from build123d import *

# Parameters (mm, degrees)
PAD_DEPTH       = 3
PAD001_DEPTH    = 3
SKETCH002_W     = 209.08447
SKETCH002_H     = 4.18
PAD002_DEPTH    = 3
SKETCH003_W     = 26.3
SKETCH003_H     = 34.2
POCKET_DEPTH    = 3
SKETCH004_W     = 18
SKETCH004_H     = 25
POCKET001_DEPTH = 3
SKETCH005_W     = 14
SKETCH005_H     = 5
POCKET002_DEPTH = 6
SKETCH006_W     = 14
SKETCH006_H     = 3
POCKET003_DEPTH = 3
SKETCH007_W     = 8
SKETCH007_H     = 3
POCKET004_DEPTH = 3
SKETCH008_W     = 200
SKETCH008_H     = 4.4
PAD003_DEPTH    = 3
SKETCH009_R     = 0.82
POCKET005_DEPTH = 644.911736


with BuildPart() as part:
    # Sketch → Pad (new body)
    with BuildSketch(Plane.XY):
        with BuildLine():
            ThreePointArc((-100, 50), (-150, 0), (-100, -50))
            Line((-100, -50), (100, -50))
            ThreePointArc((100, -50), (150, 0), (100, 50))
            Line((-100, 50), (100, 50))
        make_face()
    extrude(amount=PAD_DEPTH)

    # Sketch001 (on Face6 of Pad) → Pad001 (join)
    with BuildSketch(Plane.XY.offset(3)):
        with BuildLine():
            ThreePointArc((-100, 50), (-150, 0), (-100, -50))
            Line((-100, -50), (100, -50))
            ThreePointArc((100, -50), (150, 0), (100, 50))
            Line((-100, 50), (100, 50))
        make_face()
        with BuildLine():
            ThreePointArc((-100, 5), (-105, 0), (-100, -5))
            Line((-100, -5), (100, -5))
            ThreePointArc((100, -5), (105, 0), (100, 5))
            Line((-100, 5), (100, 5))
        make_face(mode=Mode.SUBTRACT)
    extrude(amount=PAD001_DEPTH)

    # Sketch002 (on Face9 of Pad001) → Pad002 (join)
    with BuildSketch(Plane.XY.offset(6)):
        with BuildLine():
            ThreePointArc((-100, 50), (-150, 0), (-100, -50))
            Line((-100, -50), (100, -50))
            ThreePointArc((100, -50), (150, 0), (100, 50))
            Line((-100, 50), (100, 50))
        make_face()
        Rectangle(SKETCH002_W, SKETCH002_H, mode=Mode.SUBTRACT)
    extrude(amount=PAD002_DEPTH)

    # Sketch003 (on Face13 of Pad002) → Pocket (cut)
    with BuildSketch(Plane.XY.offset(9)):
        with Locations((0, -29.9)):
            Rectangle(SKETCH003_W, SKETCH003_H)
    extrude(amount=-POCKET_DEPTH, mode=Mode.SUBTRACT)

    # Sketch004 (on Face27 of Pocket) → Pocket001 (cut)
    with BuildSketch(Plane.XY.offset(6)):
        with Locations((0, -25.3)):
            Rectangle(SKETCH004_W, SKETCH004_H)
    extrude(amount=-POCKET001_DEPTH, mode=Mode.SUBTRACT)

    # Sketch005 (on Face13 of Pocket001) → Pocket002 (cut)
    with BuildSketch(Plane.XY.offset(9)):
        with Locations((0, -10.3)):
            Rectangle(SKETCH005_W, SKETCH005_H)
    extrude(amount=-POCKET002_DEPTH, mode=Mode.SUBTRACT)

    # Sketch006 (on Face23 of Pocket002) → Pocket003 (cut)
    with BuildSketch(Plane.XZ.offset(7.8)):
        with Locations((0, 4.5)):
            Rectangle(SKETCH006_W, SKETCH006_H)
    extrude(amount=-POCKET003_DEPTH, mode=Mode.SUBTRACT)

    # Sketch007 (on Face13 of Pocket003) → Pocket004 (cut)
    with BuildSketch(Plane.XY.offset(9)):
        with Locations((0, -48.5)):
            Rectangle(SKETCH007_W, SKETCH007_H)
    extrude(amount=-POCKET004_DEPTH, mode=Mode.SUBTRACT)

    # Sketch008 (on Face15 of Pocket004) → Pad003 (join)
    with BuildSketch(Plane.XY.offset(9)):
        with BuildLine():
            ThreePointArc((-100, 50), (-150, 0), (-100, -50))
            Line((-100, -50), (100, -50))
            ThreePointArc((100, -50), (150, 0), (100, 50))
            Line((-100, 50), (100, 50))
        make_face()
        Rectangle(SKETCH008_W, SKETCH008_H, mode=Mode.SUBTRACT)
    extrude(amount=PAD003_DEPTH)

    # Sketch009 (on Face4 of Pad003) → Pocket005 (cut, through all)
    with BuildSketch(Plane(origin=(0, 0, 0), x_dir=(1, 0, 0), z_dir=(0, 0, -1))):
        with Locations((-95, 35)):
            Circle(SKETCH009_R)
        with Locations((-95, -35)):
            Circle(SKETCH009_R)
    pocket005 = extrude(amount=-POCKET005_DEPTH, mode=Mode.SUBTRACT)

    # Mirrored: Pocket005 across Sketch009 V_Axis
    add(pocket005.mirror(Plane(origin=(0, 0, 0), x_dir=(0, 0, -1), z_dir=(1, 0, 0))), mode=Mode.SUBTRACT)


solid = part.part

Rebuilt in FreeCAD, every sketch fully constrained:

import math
import FreeCAD as App
import Part
import Sketcher


def add_polygon(sketch, points):
    """Adds a closed chain of lines whose ends are joined by coincident constraints."""
    first, n = sketch.GeometryCount, len(points)
    for a, b in zip(points, points[1:] + points[:1]):
        sketch.addGeometry(Part.LineSegment(App.Vector(*a, 0), App.Vector(*b, 0)), False)
    for i in range(n):
        sketch.addConstraint(Sketcher.Constraint("Coincident", first + i, 2, first + (i + 1) % n, 1))

doc = App.newDocument("Part")
body = doc.addObject("PartDesign::Body", "Body")

# Sketch on XY plane
sketch1 = body.newObject("Sketcher::SketchObject", "Sketch")
sketch1.AttachmentSupport = (doc.getObject("XY_Plane"), [""])
sketch1.MapMode = "FlatFace"
sketch1.addGeometry([
    Part.ArcOfCircle(Part.Circle(App.Vector(-100, 0, 0), App.Vector(0, 0, 1), 50), math.radians(90), math.radians(270)),
    Part.LineSegment(App.Vector(-100, -50, 0), App.Vector(100, -50, 0)),
    Part.ArcOfCircle(Part.Circle(App.Vector(100, 0, 0), App.Vector(0, 0, 1), 50), math.radians(-90), math.radians(90)),
    Part.LineSegment(App.Vector(100, 50, 0), App.Vector(-100, 50, 0)),
], False)
sketch1.addConstraint([
    Sketcher.Constraint("Tangent", 0, 2, 1, 1),
    Sketcher.Constraint("Tangent", 1, 2, 2, 1),
    Sketcher.Constraint("Tangent", 2, 2, 3, 1),
    Sketcher.Constraint("Tangent", 3, 2, 0, 1),
    Sketcher.Constraint("Horizontal", 1),
    Sketcher.Constraint("Horizontal", 3),
    Sketcher.Constraint("Symmetric", 0, 3, 2, 3, -1, 1),
    Sketcher.Constraint("Radius", 0, 50.0),
    Sketcher.Constraint("DistanceX", 1, 1, 1, 2, 200.0),
])
pad1 = body.newObject("PartDesign::Pad", "Pad")
pad1.Profile = sketch1
pad1.Length = 3

# Sketch on XY plane
sketch2 = body.newObject("Sketcher::SketchObject", "Sketch001")
sketch2.AttachmentSupport = (doc.getObject("XY_Plane"), [""])
sketch2.MapMode = "FlatFace"
sketch2.AttachmentOffset = App.Placement(App.Vector(0, 0, 3), App.Rotation())
sketch2.addGeometry([
    Part.ArcOfCircle(Part.Circle(App.Vector(-100, 0, 0), App.Vector(0, 0, 1), 50), math.radians(90), math.radians(270)),  # 0
    Part.LineSegment(App.Vector(-100, -50, 0), App.Vector(100, -50, 0)),  # 1
    Part.ArcOfCircle(Part.Circle(App.Vector(100, 0, 0), App.Vector(0, 0, 1), 50), math.radians(-90), math.radians(90)),  # 2
    Part.LineSegment(App.Vector(100, 50, 0), App.Vector(-100, 50, 0)),  # 3
    Part.ArcOfCircle(Part.Circle(App.Vector(-100, 0, 0), App.Vector(0, 0, 1), 5), math.radians(90), math.radians(270)),  # 4
    Part.LineSegment(App.Vector(-100, 5, 0), App.Vector(100, 5, 0)),  # 5
    Part.ArcOfCircle(Part.Circle(App.Vector(100, 0, 0), App.Vector(0, 0, 1), 5), math.radians(-90), math.radians(90)),  # 6
    Part.LineSegment(App.Vector(100, -5, 0), App.Vector(-100, -5, 0)),  # 7
], False)
sketch2.addConstraint([
    Sketcher.Constraint("Tangent", 0, 2, 1, 1),
    Sketcher.Constraint("Tangent", 1, 2, 2, 1),
    Sketcher.Constraint("Tangent", 2, 2, 3, 1),
    Sketcher.Constraint("Tangent", 3, 2, 0, 1),
    Sketcher.Constraint("Tangent", 4, 1, 5, 1),
    Sketcher.Constraint("Tangent", 5, 2, 6, 2),
    Sketcher.Constraint("Tangent", 6, 1, 7, 1),
    Sketcher.Constraint("Tangent", 7, 2, 4, 2),
    Sketcher.Constraint("Horizontal", 1),
    Sketcher.Constraint("Horizontal", 3),
    Sketcher.Constraint("Horizontal", 5),
    Sketcher.Constraint("Horizontal", 7),
    Sketcher.Constraint("Coincident", 4, 3, 0, 3),
    Sketcher.Constraint("Symmetric", 0, 3, 2, 3, -1, 1),
    Sketcher.Constraint("Vertical", 6, 3, 1, 2),
    Sketcher.Constraint("Radius", 0, 50.0),
    Sketcher.Constraint("Radius", 4, 5.0),
    Sketcher.Constraint("DistanceX", 1, 1, 1, 2, 200.0),
])
pad2 = body.newObject("PartDesign::Pad", "Pad001")
pad2.Profile = sketch2
pad2.Length = 3

# Sketch on XY plane
sketch3 = body.newObject("Sketcher::SketchObject", "Sketch002")
sketch3.AttachmentSupport = (doc.getObject("XY_Plane"), [""])
sketch3.MapMode = "FlatFace"
sketch3.AttachmentOffset = App.Placement(App.Vector(0, 0, 6), App.Rotation())
sketch3.addGeometry(Part.ArcOfCircle(Part.Circle(App.Vector(-100, 0, 0), App.Vector(0, 0, 1), 50), math.radians(90), math.radians(270)), False)  # 0
sketch3.addGeometry(Part.LineSegment(App.Vector(-100, -50, 0), App.Vector(100, -50, 0)), False)  # 1
sketch3.addGeometry(Part.ArcOfCircle(Part.Circle(App.Vector(100, 0, 0), App.Vector(0, 0, 1), 50), math.radians(-90), math.radians(90)), False)  # 2
sketch3.addGeometry(Part.LineSegment(App.Vector(100, 50, 0), App.Vector(-100, 50, 0)), False)  # 3
add_polygon(sketch3, [(104.5, -2.1), (-104.5, -2.1), (-104.5, 2.1), (104.5, 2.1)])  # lines 4-7
sketch3.addConstraint([
    Sketcher.Constraint("Tangent", 0, 2, 1, 1),
    Sketcher.Constraint("Tangent", 1, 2, 2, 1),
    Sketcher.Constraint("Tangent", 2, 2, 3, 1),
    Sketcher.Constraint("Tangent", 3, 2, 0, 1),
    Sketcher.Constraint("Horizontal", 1),
    Sketcher.Constraint("Horizontal", 3),
    Sketcher.Constraint("Horizontal", 4),
    Sketcher.Constraint("Vertical", 5),
    Sketcher.Constraint("Horizontal", 6),
    Sketcher.Constraint("Vertical", 7),
    Sketcher.Constraint("Symmetric", 0, 3, 2, 3, -1, 1),
    Sketcher.Constraint("Symmetric", 4, 2, 6, 2, -1, 1),
    Sketcher.Constraint("Radius", 0, 50.0),
    Sketcher.Constraint("DistanceX", 1, 1, 1, 2, 200.0),
    Sketcher.Constraint("DistanceY", 5, 1, 5, 2, 4.18),
    Sketcher.Constraint("DistanceX", 4, 2, 4, 1, 209.08447),
])
pad3 = body.newObject("PartDesign::Pad", "Pad002")
pad3.Profile = sketch3
pad3.Length = 3

# Sketch on XY plane
sketch4 = body.newObject("Sketcher::SketchObject", "Sketch003")
sketch4.AttachmentSupport = (doc.getObject("XY_Plane"), [""])
sketch4.MapMode = "FlatFace"
sketch4.AttachmentOffset = App.Placement(App.Vector(0, 0, 9), App.Rotation())
add_polygon(sketch4, [(-13, -13), (-13, -47), (13, -47), (13, -13)])  # lines 0-3
sketch4.addConstraint([
    Sketcher.Constraint("Vertical", 0),
    Sketcher.Constraint("Horizontal", 1),
    Sketcher.Constraint("Vertical", 2),
    Sketcher.Constraint("Horizontal", 3),
    Sketcher.Constraint("DistanceX", 1, 1, 1, 2, 26.3),
    Sketcher.Constraint("DistanceY", 0, 2, 0, 1, 34.2),
    Sketcher.Constraint("DistanceY", 0, 2, -1, 1, 47.0),
    Sketcher.Constraint("DistanceX", 0, 2, -1, 1, 13.15),
])
pocket1 = body.newObject("PartDesign::Pocket", "Pocket")
pocket1.Profile = sketch4
pocket1.Length = 3

# Sketch on XY plane
sketch5 = body.newObject("Sketcher::SketchObject", "Sketch004")
sketch5.AttachmentSupport = (doc.getObject("XY_Plane"), [""])
sketch5.MapMode = "FlatFace"
sketch5.AttachmentOffset = App.Placement(App.Vector(0, 0, 6), App.Rotation())
add_polygon(sketch5, [(-9, -13), (-9, -38), (9, -38), (9, -13)])  # lines 0-3
sketch5.addConstraint([
    Sketcher.Constraint("Vertical", 0),
    Sketcher.Constraint("Horizontal", 1),
    Sketcher.Constraint("Vertical", 2),
    Sketcher.Constraint("Horizontal", 3),
    Sketcher.Constraint("DistanceX", 1, 1, 1, 2, 18.0),
    Sketcher.Constraint("DistanceY", 0, 2, 0, 1, 25.0),
    Sketcher.Constraint("DistanceX", 0, 2, -1, 1, 9.0),
    Sketcher.Constraint("DistanceY", 0, 2, -1, 1, 37.8),
])
pocket2 = body.newObject("PartDesign::Pocket", "Pocket001")
pocket2.Profile = sketch5
pocket2.Length = 3

# Sketch on XY plane
sketch6 = body.newObject("Sketcher::SketchObject", "Sketch005")
sketch6.AttachmentSupport = (doc.getObject("XY_Plane"), [""])
sketch6.MapMode = "FlatFace"
sketch6.AttachmentOffset = App.Placement(App.Vector(0, 0, 9), App.Rotation())
add_polygon(sketch6, [(-7, -8), (-7, -13), (7, -13), (7, -8)])  # lines 0-3
sketch6.addConstraint([
    Sketcher.Constraint("Vertical", 0),
    Sketcher.Constraint("Horizontal", 1),
    Sketcher.Constraint("Vertical", 2),
    Sketcher.Constraint("Horizontal", 3),
    Sketcher.Constraint("DistanceX", 1, 1, 1, 2, 14.0),
    Sketcher.Constraint("DistanceY", 0, 2, 0, 1, 5.0),
    Sketcher.Constraint("DistanceX", 0, 2, -1, 1, 7.0),
    Sketcher.Constraint("DistanceY", 0, 2, -1, 1, 12.8),
])
pocket3 = body.newObject("PartDesign::Pocket", "Pocket002")
pocket3.Profile = sketch6
pocket3.Length = 6

# Sketch on XZ plane
sketch7 = body.newObject("Sketcher::SketchObject", "Sketch006")
sketch7.AttachmentSupport = (doc.getObject("XZ_Plane"), [""])
sketch7.MapMode = "FlatFace"
sketch7.AttachmentOffset = App.Placement(App.Vector(0, 0, 7.8), App.Rotation())
add_polygon(sketch7, [(-7, 6), (-7, 3), (7, 3), (7, 6)])  # lines 0-3
sketch7.addConstraint([
    Sketcher.Constraint("Vertical", 0),
    Sketcher.Constraint("Horizontal", 1),
    Sketcher.Constraint("Vertical", 2),
    Sketcher.Constraint("Horizontal", 3),
    Sketcher.Constraint("DistanceX", 1, 1, 1, 2, 14.0),
    Sketcher.Constraint("DistanceY", 0, 2, 0, 1, 3.0),
    Sketcher.Constraint("DistanceX", 0, 2, -1, 1, 7.0),
    Sketcher.Constraint("DistanceY", -1, 1, 0, 2, 3.0),
])
pocket4 = body.newObject("PartDesign::Pocket", "Pocket003")
pocket4.Profile = sketch7
pocket4.Length = 3

# Sketch on XY plane
sketch8 = body.newObject("Sketcher::SketchObject", "Sketch007")
sketch8.AttachmentSupport = (doc.getObject("XY_Plane"), [""])
sketch8.MapMode = "FlatFace"
sketch8.AttachmentOffset = App.Placement(App.Vector(0, 0, 9), App.Rotation())
add_polygon(sketch8, [(-4, -47), (-4, -50), (4, -50), (4, -47)])  # lines 0-3
sketch8.addConstraint([
    Sketcher.Constraint("Vertical", 0),
    Sketcher.Constraint("Horizontal", 1),
    Sketcher.Constraint("Vertical", 2),
    Sketcher.Constraint("Horizontal", 3),
    Sketcher.Constraint("DistanceX", 1, 1, 1, 2, 8.0),
    Sketcher.Constraint("DistanceY", 0, 2, 0, 1, 3.0),
    Sketcher.Constraint("DistanceX", 0, 2, -1, 1, 4.0),
    Sketcher.Constraint("DistanceY", 0, 2, -1, 1, 50.0),
])
pocket5 = body.newObject("PartDesign::Pocket", "Pocket004")
pocket5.Profile = sketch8
pocket5.Length = 3

# Sketch on XY plane
sketch9 = body.newObject("Sketcher::SketchObject", "Sketch008")
sketch9.AttachmentSupport = (doc.getObject("XY_Plane"), [""])
sketch9.MapMode = "FlatFace"
sketch9.AttachmentOffset = App.Placement(App.Vector(0, 0, 9), App.Rotation())
sketch9.addGeometry(Part.ArcOfCircle(Part.Circle(App.Vector(-100, 0, 0), App.Vector(0, 0, 1), 50), math.radians(90), math.radians(270)), False)  # 0
sketch9.addGeometry(Part.LineSegment(App.Vector(-100, -50, 0), App.Vector(100, -50, 0)), False)  # 1
sketch9.addGeometry(Part.ArcOfCircle(Part.Circle(App.Vector(100, 0, 0), App.Vector(0, 0, 1), 50), math.radians(-90), math.radians(90)), False)  # 2
sketch9.addGeometry(Part.LineSegment(App.Vector(100, 50, 0), App.Vector(-100, 50, 0)), False)  # 3
add_polygon(sketch9, [(100, -2.2), (-100, -2.2), (-100, 2.2), (100, 2.2)])  # lines 4-7
sketch9.addConstraint([
    Sketcher.Constraint("Tangent", 0, 2, 1, 1),
    Sketcher.Constraint("Tangent", 1, 2, 2, 1),
    Sketcher.Constraint("Tangent", 2, 2, 3, 1),
    Sketcher.Constraint("Tangent", 3, 2, 0, 1),
    Sketcher.Constraint("Horizontal", 1),
    Sketcher.Constraint("Horizontal", 3),
    Sketcher.Constraint("Horizontal", 4),
    Sketcher.Constraint("Vertical", 5),
    Sketcher.Constraint("Horizontal", 6),
    Sketcher.Constraint("Vertical", 7),
    Sketcher.Constraint("Symmetric", 0, 3, 2, 3, -1, 1),
    Sketcher.Constraint("Symmetric", 4, 2, 6, 2, -1, 1),
    Sketcher.Constraint("Vertical", 3, 2, 4, 2),
    Sketcher.Constraint("Radius", 0, 50.0),
    Sketcher.Constraint("DistanceX", 1, 1, 1, 2, 200.0),
    Sketcher.Constraint("DistanceY", 5, 1, 5, 2, 4.4),
])
pad4 = body.newObject("PartDesign::Pad", "Pad003")
pad4.Profile = sketch9
pad4.Length = 3

# Sketch on XY plane
sketch10 = body.newObject("Sketcher::SketchObject", "Sketch009")
sketch10.AttachmentSupport = (doc.getObject("XY_Plane"), [""])
sketch10.MapMode = "FlatFace"
sketch10.addGeometry([
    Part.Circle(App.Vector(-95, -35, 0), App.Vector(0, 0, 1), 0.8),
    Part.Circle(App.Vector(-95, 35, 0), App.Vector(0, 0, 1), 0.8),
], False)
sketch10.addConstraint([
    Sketcher.Constraint("Equal", 0, 1),
    Sketcher.Constraint("Symmetric", 0, 3, 1, 3, -1),
    Sketcher.Constraint("Diameter", 0, 1.64),
    Sketcher.Constraint("DistanceX", 0, 3, -1, 1, 95.0),
    Sketcher.Constraint("DistanceY", 0, 3, -1, 1, 35.0),
])
pocket6 = body.newObject("PartDesign::Pocket", "Pocket005")
pocket6.Profile = sketch10
pocket6.Type = "ThroughAll"
pocket6.Reversed = True
doc.recompute()

mirrored = body.newObject("PartDesign::Mirrored", "Mirrored")
mirrored.Originals = [pocket6]
mirrored.MirrorPlane = (doc.getObject("YZ_Plane"), [""])
body.Tip = mirrored

doc.recompute()
